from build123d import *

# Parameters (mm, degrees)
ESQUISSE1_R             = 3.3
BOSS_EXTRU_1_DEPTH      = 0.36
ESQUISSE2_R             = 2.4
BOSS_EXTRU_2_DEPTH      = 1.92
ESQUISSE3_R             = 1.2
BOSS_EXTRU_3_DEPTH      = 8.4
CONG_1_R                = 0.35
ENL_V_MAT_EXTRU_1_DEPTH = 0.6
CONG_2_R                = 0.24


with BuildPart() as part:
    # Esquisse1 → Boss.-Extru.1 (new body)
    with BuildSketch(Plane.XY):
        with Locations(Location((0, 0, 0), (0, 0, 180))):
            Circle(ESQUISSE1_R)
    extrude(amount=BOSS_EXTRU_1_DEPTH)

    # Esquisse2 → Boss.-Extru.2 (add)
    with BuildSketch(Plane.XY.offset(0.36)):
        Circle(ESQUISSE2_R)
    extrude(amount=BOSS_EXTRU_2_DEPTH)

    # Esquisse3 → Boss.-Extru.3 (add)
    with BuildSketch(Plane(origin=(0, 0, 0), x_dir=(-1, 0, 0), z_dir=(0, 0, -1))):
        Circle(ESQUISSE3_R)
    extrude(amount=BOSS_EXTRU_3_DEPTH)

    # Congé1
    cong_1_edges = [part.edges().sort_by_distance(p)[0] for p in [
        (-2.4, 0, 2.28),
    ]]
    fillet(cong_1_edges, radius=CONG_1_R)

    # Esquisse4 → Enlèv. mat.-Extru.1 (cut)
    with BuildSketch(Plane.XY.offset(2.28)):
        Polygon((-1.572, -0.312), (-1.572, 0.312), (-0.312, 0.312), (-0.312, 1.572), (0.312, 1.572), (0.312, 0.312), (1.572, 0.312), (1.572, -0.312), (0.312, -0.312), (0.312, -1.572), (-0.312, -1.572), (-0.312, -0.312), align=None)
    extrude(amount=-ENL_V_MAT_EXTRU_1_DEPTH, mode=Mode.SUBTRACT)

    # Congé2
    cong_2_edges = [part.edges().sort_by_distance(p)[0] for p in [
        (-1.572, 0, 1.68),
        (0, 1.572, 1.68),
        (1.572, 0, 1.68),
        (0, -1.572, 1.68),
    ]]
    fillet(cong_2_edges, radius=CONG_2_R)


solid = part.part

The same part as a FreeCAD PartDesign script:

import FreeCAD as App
import Part
import Sketcher

V = App.Vector
Q = App.Units.Quantity


def edges_at(feature, points):
    """Names of the edges that pass closest to the given points."""
    edges = feature.Shape.Edges
    near = lambda p: min(range(len(edges)), key=lambda i: edges[i].distToShape(Part.Vertex(*p))[0])
    return sorted({f"Edge{near(p) + 1}" for p in points})


def add_polygon(sketch, points):
    """Adds a closed chain of lines whose ends are joined by coincident constraints."""
    first, n = sketch.GeometryCount, len(points)
    for a, b in zip(points, points[1:] + points[:1]):
        sketch.addGeometry(Part.LineSegment(App.Vector(*a, 0), App.Vector(*b, 0)), False)
    for i in range(n):
        sketch.addConstraint(Sketcher.Constraint("Coincident", first + i, 2, first + (i + 1) % n, 1))

doc = App.newDocument("Part")
body = doc.addObject("PartDesign::Body", "Body")

# Sketch on XY plane
sketch1 = body.newObject("Sketcher::SketchObject", "Sketch")
sketch1.AttachmentSupport = (doc.getObject("XY_Plane"), [""])
sketch1.MapMode = "FlatFace"
sketch1.addGeometry(Part.Circle(V(0, 0, 0), V(0, 0, 1), 3.3), False)
sketch1.addConstraint([
    Sketcher.Constraint("Coincident", 0, 3, -1, 1),
    Sketcher.Constraint("Diameter", 0, Q("6.6 mm")),
])
pad1 = body.newObject("PartDesign::Pad", "Pad")
pad1.Profile = sketch1
pad1.Length = 0.36

# Sketch on XY plane
sketch2 = body.newObject("Sketcher::SketchObject", "Sketch001")
sketch2.AttachmentSupport = (doc.getObject("XY_Plane"), [""])
sketch2.MapMode = "FlatFace"
sketch2.AttachmentOffset = App.Placement(V(0, 0, 0.36), App.Rotation())
sketch2.addGeometry(Part.Circle(V(0, 0, 0), V(0, 0, 1), 2.4), False)
sketch2.addConstraint([
    Sketcher.Constraint("Coincident", 0, 3, -1, 1),
    Sketcher.Constraint("Diameter", 0, Q("4.8 mm")),
])
pad2 = body.newObject("PartDesign::Pad", "Pad001")
pad2.Profile = sketch2
pad2.Length = 1.92

# Sketch on XY plane
sketch3 = body.newObject("Sketcher::SketchObject", "Sketch002")
sketch3.AttachmentSupport = (doc.getObject("XY_Plane"), [""])
sketch3.MapMode = "FlatFace"
sketch3.addGeometry(Part.Circle(V(0, 0, 0), V(0, 0, 1), 1.2), False)
sketch3.addConstraint([
    Sketcher.Constraint("Coincident", 0, 3, -1, 1),
    Sketcher.Constraint("Diameter", 0, Q("2.4 mm")),
])
pad3 = body.newObject("PartDesign::Pad", "Pad002")
pad3.Profile = sketch3
pad3.Length = 8.4
pad3.Reversed = True
doc.recompute()

fillet = body.newObject("PartDesign::Fillet", "Fillet")
fillet.Base = (pad3, edges_at(pad3, [(-2.4, 0, 2.28)]))
fillet.Radius = 0.35

# Sketch on XY plane
sketch4 = body.newObject("Sketcher::SketchObject", "Sketch003")
sketch4.AttachmentSupport = (doc.getObject("XY_Plane"), [""])
sketch4.MapMode = "FlatFace"
sketch4.AttachmentOffset = App.Placement(V(0, 0, 2.28), App.Rotation())
add_polygon(sketch4, [(-1.6, 0.3), (-1.6, -0.3), (-0.3, -0.3), (-0.3, -1.6), (0.3, -1.6), (0.3, -0.3), (1.6, -0.3), (1.6, 0.3), (0.3, 0.3), (0.3, 1.6), (-0.3, 1.6), (-0.3, 0.3)])  # lines 0-11
sketch4.addConstraint([
    Sketcher.Constraint("Vertical", 0),
    Sketcher.Constraint("Horizontal", 1),
    Sketcher.Constraint("Vertical", 2),
    Sketcher.Constraint("Horizontal", 3),
    Sketcher.Constraint("Vertical", 4),
    Sketcher.Constraint("Horizontal", 5),
    Sketcher.Constraint("Vertical", 6),
    Sketcher.Constraint("Horizontal", 7),
    Sketcher.Constraint("Vertical", 8),
    Sketcher.Constraint("Horizontal", 9),
    Sketcher.Constraint("Vertical", 10),
    Sketcher.Constraint("Horizontal", 11),
    Sketcher.Constraint("Symmetric", 0, 2, 6, 2, -1, 1),
    Sketcher.Constraint("Symmetric", 2, 2, 8, 2, -1, 1),
    Sketcher.Constraint("Symmetric", 4, 2, 10, 2, -1, 1),
    Sketcher.Constraint("Symmetric", 1, 2, 4, 2, -2),
    Sketcher.Constraint("Equal", 9, 0),
    Sketcher.Constraint("Equal", 11, 2),
    Sketcher.Constraint("DistanceX", 1, 1, 1, 2, Q("1.26 mm")),
    Sketcher.Constraint("DistanceX", 3, 1, 3, 2, Q("0.624 mm")),
])
pocket1 = body.newObject("PartDesign::Pocket", "Pocket")
pocket1.Profile = sketch4
pocket1.Length = 0.6
doc.recompute()

fillet2 = body.newObject("PartDesign::Fillet", "Fillet001")
fillet2.Base = (pocket1, edges_at(pocket1, [
    (-1.572, 0, 1.68),
    (0, 1.572, 1.68),
    (1.572, 0, 1.68),
    (0, -1.572, 1.68),
]))
fillet2.Radius = 0.24

doc.recompute()
